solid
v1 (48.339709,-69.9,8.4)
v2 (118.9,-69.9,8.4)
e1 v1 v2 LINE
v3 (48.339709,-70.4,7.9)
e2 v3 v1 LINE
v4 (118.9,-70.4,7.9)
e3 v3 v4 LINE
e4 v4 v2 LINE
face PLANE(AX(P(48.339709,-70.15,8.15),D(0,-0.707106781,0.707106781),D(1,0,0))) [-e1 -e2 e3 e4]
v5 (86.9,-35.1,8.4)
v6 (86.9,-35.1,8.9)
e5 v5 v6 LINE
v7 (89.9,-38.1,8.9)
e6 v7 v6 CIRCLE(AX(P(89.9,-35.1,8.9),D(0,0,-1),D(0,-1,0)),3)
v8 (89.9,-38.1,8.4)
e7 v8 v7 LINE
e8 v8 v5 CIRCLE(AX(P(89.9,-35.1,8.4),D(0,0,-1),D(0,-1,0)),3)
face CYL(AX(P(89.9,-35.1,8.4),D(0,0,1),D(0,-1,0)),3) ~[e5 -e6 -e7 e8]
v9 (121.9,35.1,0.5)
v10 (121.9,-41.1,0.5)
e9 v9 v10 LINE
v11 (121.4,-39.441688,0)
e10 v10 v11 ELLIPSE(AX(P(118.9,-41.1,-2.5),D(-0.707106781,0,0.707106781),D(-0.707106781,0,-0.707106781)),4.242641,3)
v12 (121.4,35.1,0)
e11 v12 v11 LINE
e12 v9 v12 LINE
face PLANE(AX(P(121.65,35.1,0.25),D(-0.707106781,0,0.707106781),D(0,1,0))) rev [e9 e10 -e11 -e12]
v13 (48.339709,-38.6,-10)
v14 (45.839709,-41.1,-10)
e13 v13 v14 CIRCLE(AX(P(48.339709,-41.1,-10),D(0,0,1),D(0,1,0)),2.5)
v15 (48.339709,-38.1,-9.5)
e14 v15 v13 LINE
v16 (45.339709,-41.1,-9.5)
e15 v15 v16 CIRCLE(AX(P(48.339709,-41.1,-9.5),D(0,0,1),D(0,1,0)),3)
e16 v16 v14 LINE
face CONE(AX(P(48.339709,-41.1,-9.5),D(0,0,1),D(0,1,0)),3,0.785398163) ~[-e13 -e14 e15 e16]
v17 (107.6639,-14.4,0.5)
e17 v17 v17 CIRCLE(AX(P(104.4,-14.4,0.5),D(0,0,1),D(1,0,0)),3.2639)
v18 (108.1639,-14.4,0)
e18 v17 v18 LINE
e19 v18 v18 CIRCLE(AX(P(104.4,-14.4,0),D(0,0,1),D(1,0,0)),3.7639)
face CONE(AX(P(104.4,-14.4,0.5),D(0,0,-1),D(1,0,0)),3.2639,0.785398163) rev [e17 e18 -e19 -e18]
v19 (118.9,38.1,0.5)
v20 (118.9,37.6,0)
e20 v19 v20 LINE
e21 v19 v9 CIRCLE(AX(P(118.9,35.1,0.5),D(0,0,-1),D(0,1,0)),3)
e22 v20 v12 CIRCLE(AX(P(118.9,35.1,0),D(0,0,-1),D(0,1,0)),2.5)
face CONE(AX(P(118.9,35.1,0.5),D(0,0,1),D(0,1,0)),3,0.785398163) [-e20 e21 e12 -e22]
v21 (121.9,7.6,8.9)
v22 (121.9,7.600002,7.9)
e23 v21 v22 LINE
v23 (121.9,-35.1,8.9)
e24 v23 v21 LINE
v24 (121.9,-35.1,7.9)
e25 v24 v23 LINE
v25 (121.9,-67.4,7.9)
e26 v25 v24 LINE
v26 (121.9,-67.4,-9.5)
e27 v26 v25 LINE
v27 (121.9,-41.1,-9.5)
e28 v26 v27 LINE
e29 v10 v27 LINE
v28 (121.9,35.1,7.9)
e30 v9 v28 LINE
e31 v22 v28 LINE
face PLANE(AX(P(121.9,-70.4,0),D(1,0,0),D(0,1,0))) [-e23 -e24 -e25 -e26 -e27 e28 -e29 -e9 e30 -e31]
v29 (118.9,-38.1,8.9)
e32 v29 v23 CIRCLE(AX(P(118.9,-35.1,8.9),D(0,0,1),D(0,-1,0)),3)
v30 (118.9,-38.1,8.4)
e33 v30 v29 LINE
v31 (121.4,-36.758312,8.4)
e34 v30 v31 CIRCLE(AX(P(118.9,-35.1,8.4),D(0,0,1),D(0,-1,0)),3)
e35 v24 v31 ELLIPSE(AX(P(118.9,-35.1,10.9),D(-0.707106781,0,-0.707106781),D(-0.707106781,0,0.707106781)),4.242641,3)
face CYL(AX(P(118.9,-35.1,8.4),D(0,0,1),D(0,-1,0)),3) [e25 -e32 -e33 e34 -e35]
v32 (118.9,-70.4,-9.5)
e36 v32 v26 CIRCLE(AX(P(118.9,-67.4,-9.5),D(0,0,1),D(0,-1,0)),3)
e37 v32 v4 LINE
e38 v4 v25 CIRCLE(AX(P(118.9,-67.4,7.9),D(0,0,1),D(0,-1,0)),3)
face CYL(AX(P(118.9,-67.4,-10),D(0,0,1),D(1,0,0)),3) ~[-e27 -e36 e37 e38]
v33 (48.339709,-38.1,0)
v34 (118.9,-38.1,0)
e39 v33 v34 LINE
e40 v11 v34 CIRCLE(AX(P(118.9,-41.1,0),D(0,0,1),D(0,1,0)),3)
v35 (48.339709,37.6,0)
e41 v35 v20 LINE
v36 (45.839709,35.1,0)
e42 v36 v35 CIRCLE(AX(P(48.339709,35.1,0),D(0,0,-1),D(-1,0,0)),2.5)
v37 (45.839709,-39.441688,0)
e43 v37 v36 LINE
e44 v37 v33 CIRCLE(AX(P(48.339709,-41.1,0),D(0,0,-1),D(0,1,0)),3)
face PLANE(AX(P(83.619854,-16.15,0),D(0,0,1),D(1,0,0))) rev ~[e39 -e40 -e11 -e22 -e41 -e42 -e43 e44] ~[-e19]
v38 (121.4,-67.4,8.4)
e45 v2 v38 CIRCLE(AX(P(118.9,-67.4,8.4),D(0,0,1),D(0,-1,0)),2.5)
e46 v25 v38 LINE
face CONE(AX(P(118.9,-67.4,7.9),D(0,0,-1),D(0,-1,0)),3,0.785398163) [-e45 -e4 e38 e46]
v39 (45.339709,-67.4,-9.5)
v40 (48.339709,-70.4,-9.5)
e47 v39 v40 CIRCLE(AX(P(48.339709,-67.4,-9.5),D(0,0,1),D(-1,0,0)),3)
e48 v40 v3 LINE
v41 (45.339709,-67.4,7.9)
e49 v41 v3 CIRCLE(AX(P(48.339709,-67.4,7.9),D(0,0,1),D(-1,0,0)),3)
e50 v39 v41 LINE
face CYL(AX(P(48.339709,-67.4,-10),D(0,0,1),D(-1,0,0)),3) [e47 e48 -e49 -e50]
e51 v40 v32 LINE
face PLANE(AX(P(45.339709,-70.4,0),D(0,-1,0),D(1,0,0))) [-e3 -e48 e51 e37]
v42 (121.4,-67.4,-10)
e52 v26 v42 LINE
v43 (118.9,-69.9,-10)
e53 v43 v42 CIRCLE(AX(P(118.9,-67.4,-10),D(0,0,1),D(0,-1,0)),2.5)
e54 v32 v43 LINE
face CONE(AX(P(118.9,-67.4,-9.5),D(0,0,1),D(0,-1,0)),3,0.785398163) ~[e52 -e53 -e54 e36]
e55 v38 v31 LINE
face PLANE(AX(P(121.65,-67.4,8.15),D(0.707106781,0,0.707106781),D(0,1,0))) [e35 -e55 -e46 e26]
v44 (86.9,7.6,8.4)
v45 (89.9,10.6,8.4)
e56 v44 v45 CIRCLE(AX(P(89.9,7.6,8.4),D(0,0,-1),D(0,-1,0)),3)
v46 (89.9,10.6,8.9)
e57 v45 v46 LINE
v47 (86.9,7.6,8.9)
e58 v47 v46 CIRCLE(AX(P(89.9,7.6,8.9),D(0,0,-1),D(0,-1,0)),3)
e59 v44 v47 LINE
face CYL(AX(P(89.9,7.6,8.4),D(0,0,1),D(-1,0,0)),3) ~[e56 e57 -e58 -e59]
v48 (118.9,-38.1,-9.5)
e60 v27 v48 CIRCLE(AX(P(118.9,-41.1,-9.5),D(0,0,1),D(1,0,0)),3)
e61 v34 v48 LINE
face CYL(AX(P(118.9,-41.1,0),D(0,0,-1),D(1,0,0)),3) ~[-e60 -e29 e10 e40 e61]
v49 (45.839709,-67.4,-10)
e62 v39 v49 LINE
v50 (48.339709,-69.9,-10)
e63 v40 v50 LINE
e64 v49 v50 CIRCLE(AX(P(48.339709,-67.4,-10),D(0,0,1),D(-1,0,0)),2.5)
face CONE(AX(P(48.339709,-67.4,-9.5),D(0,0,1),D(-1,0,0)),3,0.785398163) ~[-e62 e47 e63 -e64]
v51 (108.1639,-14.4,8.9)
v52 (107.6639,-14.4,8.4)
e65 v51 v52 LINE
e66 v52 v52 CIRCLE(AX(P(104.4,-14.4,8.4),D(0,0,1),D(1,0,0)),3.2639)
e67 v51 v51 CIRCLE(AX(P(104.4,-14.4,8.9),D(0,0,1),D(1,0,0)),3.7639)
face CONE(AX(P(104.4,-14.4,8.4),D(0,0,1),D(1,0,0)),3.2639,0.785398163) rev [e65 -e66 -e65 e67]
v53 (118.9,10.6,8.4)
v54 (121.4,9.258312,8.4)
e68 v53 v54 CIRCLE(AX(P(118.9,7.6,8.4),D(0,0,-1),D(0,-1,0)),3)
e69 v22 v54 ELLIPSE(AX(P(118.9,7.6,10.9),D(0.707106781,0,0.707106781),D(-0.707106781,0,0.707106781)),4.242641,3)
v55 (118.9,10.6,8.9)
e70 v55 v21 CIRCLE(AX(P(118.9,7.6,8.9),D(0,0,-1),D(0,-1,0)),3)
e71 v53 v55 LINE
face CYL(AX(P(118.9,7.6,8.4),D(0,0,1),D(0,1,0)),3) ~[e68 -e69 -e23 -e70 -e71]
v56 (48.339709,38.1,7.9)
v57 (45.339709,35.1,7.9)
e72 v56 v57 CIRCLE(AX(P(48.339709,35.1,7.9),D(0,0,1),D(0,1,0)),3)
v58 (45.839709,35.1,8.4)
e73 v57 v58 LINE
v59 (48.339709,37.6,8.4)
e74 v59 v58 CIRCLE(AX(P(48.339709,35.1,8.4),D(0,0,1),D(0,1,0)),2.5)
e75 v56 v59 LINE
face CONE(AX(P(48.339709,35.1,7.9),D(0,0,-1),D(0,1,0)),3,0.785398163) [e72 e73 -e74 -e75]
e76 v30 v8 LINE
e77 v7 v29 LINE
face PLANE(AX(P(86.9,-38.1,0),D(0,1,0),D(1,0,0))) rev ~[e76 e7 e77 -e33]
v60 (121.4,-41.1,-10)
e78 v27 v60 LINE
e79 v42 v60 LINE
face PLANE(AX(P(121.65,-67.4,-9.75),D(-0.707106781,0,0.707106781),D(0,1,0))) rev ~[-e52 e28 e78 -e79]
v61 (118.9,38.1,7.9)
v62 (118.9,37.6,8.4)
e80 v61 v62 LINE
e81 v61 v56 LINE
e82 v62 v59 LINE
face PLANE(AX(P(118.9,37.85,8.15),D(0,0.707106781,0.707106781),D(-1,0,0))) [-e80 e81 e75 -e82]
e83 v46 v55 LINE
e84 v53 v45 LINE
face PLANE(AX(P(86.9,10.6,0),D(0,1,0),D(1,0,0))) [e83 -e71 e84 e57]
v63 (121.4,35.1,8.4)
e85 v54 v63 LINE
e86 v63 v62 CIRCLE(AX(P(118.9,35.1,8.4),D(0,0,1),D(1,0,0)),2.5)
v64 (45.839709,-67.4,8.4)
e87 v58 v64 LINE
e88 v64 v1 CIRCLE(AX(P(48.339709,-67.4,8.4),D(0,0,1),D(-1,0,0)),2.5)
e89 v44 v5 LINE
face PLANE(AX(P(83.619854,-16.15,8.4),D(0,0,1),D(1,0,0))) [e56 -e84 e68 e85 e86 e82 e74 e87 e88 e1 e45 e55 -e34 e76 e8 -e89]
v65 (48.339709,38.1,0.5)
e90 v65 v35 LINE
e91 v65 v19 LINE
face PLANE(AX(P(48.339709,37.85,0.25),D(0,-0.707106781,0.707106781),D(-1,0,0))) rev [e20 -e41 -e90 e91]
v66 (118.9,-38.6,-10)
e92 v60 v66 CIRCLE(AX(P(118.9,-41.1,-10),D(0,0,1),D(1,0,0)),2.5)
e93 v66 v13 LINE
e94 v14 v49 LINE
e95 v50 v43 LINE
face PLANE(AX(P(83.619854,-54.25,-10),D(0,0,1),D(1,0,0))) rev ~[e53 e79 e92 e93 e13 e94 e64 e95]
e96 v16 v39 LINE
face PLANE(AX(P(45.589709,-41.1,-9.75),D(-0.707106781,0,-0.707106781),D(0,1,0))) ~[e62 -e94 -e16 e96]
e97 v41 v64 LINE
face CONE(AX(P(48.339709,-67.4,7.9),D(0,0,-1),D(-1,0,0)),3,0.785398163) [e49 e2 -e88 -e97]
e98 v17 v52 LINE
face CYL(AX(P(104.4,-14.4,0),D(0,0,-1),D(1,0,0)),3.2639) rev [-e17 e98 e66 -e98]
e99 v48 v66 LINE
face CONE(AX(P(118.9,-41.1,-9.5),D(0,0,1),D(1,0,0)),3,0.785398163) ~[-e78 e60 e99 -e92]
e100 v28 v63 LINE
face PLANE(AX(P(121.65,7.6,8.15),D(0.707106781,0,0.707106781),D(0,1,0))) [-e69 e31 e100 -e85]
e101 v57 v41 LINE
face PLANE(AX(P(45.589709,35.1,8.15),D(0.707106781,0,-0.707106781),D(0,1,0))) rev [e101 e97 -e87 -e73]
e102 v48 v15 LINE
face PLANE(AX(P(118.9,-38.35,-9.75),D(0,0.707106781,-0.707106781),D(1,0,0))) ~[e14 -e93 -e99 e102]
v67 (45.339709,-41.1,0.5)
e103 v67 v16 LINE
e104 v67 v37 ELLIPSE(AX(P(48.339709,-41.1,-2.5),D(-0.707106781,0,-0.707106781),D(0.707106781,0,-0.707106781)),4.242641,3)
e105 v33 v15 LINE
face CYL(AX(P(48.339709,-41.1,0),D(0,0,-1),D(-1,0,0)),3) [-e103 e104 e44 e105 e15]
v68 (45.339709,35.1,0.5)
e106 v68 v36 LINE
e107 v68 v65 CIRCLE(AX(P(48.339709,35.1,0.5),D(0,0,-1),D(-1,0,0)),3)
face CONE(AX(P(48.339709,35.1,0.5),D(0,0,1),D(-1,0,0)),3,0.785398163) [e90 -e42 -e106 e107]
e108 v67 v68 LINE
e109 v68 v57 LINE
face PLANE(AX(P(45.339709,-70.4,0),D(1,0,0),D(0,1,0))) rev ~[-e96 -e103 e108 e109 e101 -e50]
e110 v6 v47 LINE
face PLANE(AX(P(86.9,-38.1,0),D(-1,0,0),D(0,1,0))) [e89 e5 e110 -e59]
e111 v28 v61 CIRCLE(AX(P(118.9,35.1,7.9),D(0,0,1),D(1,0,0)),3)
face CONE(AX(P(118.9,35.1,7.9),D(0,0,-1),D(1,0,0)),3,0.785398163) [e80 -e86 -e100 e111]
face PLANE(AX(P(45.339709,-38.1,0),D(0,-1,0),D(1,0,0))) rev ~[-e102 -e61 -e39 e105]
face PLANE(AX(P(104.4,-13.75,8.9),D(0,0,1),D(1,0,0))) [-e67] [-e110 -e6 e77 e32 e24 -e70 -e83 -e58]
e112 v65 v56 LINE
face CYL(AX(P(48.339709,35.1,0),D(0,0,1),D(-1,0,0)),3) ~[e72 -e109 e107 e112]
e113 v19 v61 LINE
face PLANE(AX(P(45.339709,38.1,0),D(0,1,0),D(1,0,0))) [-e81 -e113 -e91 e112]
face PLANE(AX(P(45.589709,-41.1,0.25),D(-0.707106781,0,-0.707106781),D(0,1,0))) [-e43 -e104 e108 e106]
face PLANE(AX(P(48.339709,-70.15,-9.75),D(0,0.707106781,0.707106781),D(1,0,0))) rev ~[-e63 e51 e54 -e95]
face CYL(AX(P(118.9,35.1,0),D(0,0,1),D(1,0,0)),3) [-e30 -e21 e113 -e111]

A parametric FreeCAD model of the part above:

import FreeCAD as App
import Part
import Sketcher

V = App.Vector
Q = App.Units.Quantity


def edges_at(feature, points):
    """Names of the edges that pass closest to the given points."""
    edges = feature.Shape.Edges
    near = lambda p: min(range(len(edges)), key=lambda i: edges[i].distToShape(Part.Vertex(*p))[0])
    return sorted({f"Edge{near(p) + 1}" for p in points})

doc = App.newDocument("Part")
body = doc.addObject("PartDesign::Body", "Body")

sketch1 = body.newObject("Sketcher::SketchObject", "Sketch")
sketch1.AttachmentSupport = (doc.getObject("XY_Plane"), [""])
sketch1.MapMode = "FlatFace"
sketch1.addGeometry([
    Part.LineSegment(V(45.339709, 38.1, 0), V(45.339709, -70.4, 0)),
    Part.LineSegment(V(45.339709, -70.4, 0), V(121.9, -70.4, 0)),
    Part.LineSegment(V(121.9, -70.4, 0), V(121.9, 38.1, 0)),
    Part.LineSegment(V(121.9, 38.1, 0), V(45.339709, 38.1, 0)),
    Part.Circle(V(104.4, -14.4, 0), V(0, 0, 1), 3.2639),
], False)
sketch1.addConstraint([
    Sketcher.Constraint("Coincident", 0, 2, 1, 1),
    Sketcher.Constraint("Coincident", 1, 2, 2, 1),
    Sketcher.Constraint("Coincident", 2, 2, 3, 1),
    Sketcher.Constraint("Coincident", 3, 2, 0, 1),
    Sketcher.Constraint("Vertical", 0),
    Sketcher.Constraint("Horizontal", 1),
    Sketcher.Constraint("Vertical", 2),
    Sketcher.Constraint("Horizontal", 3),
    Sketcher.Constraint("DistanceY", 0, 2, 0, 1, Q("108.5 mm")),
    Sketcher.Constraint("DistanceY", 0, 2, 4, 3, Q("56 mm")),
    Sketcher.Constraint("Diameter", 4, Q("6.5278 mm")),
    Sketcher.Constraint("DistanceX", -1, 1, 4, 3, Q("104.4 mm")),
    Sketcher.Constraint("DistanceY", 4, 3, -1, 1, Q("14.4 mm")),
    Sketcher.Constraint("DistanceX", -1, 1, 1, 2, Q("121.9 mm")),
    Sketcher.Constraint("DistanceX", 1, 1, 1, 2, Q("76.560291 mm")),
])
pad1 = body.newObject("PartDesign::Pad", "Pad")
pad1.Profile = sketch1
pad1.Length = 8.4

sketch2 = body.newObject("Sketcher::SketchObject", "Sketch001")
sketch2.AttachmentSupport = (doc.getObject("XY_Plane"), [""])
sketch2.MapMode = "FlatFace"
sketch2.addGeometry([
    Part.LineSegment(V(86.9, 10.6, 0), V(86.9, -38.1, 0)),
    Part.LineSegment(V(86.9, -38.1, 0), V(121.9, -38.1, 0)),
    Part.LineSegment(V(121.9, -38.1, 0), V(121.9, 10.6, 0)),
    Part.LineSegment(V(121.9, 10.6, 0), V(86.9, 10.6, 0)),
    Part.Circle(V(104.4, -14.4, 0), V(0, 0, 1), 3.2639),
], False)
sketch2.addConstraint([
    Sketcher.Constraint("Coincident", 0, 2, 1, 1),
    Sketcher.Constraint("Coincident", 1, 2, 2, 1),
    Sketcher.Constraint("Coincident", 2, 2, 3, 1),
    Sketcher.Constraint("Coincident", 3, 2, 0, 1),
    Sketcher.Constraint("Vertical", 0),
    Sketcher.Constraint("Horizontal", 1),
    Sketcher.Constraint("Vertical", 2),
    Sketcher.Constraint("Horizontal", 3),
    Sketcher.Constraint("DistanceX", 1, 1, 1, 2, Q("35 mm")),
    Sketcher.Constraint("DistanceY", 0, 2, 0, 1, Q("48.7 mm")),
    Sketcher.Constraint("DistanceY", 4, 3, 2, 2, Q("25 mm")),
    Sketcher.Constraint("Diameter", 4, Q("6.5278 mm")),
    Sketcher.Constraint("DistanceX", -1, 1, 4, 3, Q("104.4 mm")),
    Sketcher.Constraint("DistanceY", 4, 3, -1, 1, Q("14.4 mm")),
    Sketcher.Constraint("DistanceX", -1, 1, 0, 2, Q("86.9 mm")),
])
pad2 = body.newObject("PartDesign::Pad", "Pad001")
pad2.Profile = sketch2
pad2.Length = 8.9

sketch3 = body.newObject("Sketcher::SketchObject", "Sketch002")
sketch3.AttachmentSupport = (doc.getObject("XY_Plane"), [""])
sketch3.MapMode = "FlatFace"
sketch3.addGeometry([
    Part.LineSegment(V(45.339709, -38.1, 0), V(45.339709, -70.4, 0)),
    Part.LineSegment(V(45.339709, -70.4, 0), V(121.9, -70.4, 0)),
    Part.LineSegment(V(121.9, -70.4, 0), V(121.9, -38.1, 0)),
    Part.LineSegment(V(121.9, -38.1, 0), V(45.339709, -38.1, 0)),
], False)
sketch3.addConstraint([
    Sketcher.Constraint("Coincident", 0, 2, 1, 1),
    Sketcher.Constraint("Coincident", 1, 2, 2, 1),
    Sketcher.Constraint("Coincident", 2, 2, 3, 1),
    Sketcher.Constraint("Coincident", 3, 2, 0, 1),
    Sketcher.Constraint("Vertical", 0),
    Sketcher.Constraint("Horizontal", 1),
    Sketcher.Constraint("Vertical", 2),
    Sketcher.Constraint("Horizontal", 3),
    Sketcher.Constraint("DistanceY", 0, 2, 0, 1, Q("32.3 mm")),
    Sketcher.Constraint("DistanceY", 0, 2, -1, 1, Q("70.4 mm")),
    Sketcher.Constraint("DistanceX", -1, 1, 1, 2, Q("121.9 mm")),
    Sketcher.Constraint("DistanceX", 1, 1, 1, 2, Q("76.560291 mm")),
])
pad3 = body.newObject("PartDesign::Pad", "Pad002")
pad3.Profile = sketch3
pad3.Length = 10
pad3.Reversed = True
doc.recompute()

fillet = body.newObject("PartDesign::Fillet", "Fillet")
fillet.Base = (pad3, edges_at(pad3, [
    (45.34, 38.1, 4.2),
    (121.9, -38.1, 8.65),
    (86.9, -38.1, 8.65),
    (86.9, 10.6, 8.65),
    (121.9, 10.6, 8.65),
    (45.34, -70.4, -0.8),
    (121.9, -38.1, -5),
    (45.34, -38.1, -5),
    (121.9, -70.4, -0.8),
    (121.9, 38.1, 4.2),
]))
fillet.Radius = 3
doc.recompute()

chamfer = body.newObject("PartDesign::Chamfer", "Chamfer")
chamfer.Base = (fillet, edges_at(fillet, [
    (121.9, 21.35, 8.4),
    (101.136, -14.4, 8.9),
    (101.136, -14.4, 0),
    (121.9, -54.25, -10),
    (121.9, -3, 0),
    (121.9, -51.25, 8.4),
    (45.34, -16.15, 8.4),
    (45.34, -3, 0),
    (45.34, -54.25, -10),
    (83.62, 38.1, 0),
    (121.021, 37.221, 0),
    (46.218, 37.221, 0),
    (83.62, 38.1, 8.4),
    (83.62, -70.4, 8.4),
    (121.021, -69.521, 8.4),
    (46.218, -69.521, 8.4),
    (121.021, 37.221, 8.4),
    (46.218, 37.221, 8.4),
    (83.62, -38.1, -10),
    (83.62, -70.4, -10),
    (121.021, -69.521, -10),
    (46.218, -69.521, -10),
    (121.021, -38.979, -10),
    (46.218, -38.979, -10),
]))
chamfer.Size = 0.5

doc.recompute()
